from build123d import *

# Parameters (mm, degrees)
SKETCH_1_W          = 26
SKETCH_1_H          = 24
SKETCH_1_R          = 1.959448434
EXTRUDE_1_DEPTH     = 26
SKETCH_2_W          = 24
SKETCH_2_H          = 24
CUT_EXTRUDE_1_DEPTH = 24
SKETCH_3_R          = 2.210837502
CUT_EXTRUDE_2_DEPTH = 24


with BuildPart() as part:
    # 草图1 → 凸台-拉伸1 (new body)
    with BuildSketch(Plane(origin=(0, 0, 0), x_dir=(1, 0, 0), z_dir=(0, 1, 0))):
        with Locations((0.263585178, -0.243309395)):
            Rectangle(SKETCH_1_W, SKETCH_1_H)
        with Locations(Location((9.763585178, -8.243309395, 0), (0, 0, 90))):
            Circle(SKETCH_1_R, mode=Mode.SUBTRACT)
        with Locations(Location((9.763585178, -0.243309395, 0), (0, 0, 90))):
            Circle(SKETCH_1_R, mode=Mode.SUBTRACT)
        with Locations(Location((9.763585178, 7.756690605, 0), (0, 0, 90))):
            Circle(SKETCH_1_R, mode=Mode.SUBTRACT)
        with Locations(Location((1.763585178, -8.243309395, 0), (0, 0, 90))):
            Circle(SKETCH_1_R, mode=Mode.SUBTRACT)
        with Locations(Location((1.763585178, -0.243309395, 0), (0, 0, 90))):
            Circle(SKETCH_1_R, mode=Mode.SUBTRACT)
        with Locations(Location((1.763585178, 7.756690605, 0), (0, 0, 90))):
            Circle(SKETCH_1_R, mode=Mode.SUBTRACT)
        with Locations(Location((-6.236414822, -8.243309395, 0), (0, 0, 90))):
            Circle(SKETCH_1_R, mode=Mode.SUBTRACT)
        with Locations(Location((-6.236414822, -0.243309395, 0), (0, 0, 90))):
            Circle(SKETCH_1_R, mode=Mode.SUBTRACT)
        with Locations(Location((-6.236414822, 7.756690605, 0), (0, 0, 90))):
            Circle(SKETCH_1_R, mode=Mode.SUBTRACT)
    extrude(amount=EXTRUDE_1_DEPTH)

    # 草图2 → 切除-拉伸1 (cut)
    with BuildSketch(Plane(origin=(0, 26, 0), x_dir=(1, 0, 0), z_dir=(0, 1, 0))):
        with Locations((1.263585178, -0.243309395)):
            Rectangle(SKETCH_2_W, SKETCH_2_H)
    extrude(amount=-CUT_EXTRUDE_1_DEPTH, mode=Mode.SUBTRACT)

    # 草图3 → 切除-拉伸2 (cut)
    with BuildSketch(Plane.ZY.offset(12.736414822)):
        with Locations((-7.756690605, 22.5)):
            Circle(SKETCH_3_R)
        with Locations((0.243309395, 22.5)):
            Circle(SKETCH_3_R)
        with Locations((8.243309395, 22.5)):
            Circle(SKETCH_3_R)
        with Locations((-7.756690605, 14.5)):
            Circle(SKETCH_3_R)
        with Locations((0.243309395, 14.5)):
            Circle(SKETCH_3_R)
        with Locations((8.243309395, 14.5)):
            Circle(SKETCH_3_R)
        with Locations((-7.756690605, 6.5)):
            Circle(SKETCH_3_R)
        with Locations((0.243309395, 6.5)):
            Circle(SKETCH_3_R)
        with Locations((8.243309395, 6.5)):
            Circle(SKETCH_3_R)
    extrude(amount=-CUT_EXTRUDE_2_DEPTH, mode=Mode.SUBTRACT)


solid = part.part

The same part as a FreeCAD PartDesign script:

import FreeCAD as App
import Part
import Sketcher
Q = App.Units.Quantity


def add_polygon(sketch, points):
    """Adds a closed chain of lines whose ends are joined by coincident constraints."""
    first, n = sketch.GeometryCount, len(points)
    for a, b in zip(points, points[1:] + points[:1]):
        sketch.addGeometry(Part.LineSegment(App.Vector(*a, 0), App.Vector(*b, 0)), False)
    for i in range(n):
        sketch.addConstraint(Sketcher.Constraint("Coincident", first + i, 2, first + (i + 1) % n, 1))

doc = App.newDocument("Part")
body = doc.addObject("PartDesign::Body", "Body")

# Sketch on XZ plane
sketch1 = body.newObject("Sketcher::SketchObject", "Sketch")
sketch1.AttachmentSupport = (doc.getObject("XZ_Plane"), [""])
sketch1.MapMode = "FlatFace"
add_polygon(sketch1, [(-12.7, -11.8), (-12.7, 12.2), (13.3, 12.2), (13.3, -11.8)])  # lines 0-3
sketch1.addGeometry(Part.Circle(App.Vector(-6.2, 8.2, 0), App.Vector(0, 0, 1), 2), False)  # 4
sketch1.addGeometry(Part.Circle(App.Vector(1.8, 8.2, 0), App.Vector(0, 0, 1), 2), False)  # 5
sketch1.addGeometry(Part.Circle(App.Vector(9.8, 8.2, 0), App.Vector(0, 0, 1), 2), False)  # 6
sketch1.addGeometry(Part.Circle(App.Vector(-6.2, 0.2, 0), App.Vector(0, 0, 1), 2), False)  # 7
sketch1.addGeometry(Part.Circle(App.Vector(-6.2, -7.8, 0), App.Vector(0, 0, 1), 2), False)  # 8
sketch1.addGeometry(Part.Circle(App.Vector(1.8, 0.2, 0), App.Vector(0, 0, 1), 2), False)  # 9
sketch1.addGeometry(Part.Circle(App.Vector(9.8, 0.2, 0), App.Vector(0, 0, 1), 2), False)  # 10
sketch1.addGeometry(Part.Circle(App.Vector(1.8, -7.8, 0), App.Vector(0, 0, 1), 2), False)  # 11
sketch1.addGeometry(Part.Circle(App.Vector(9.8, -7.8, 0), App.Vector(0, 0, 1), 2), False)  # 12
sketch1.addConstraint(Sketcher.Constraint("Vertical", 0))
sketch1.addConstraint(Sketcher.Constraint("Horizontal", 1))
sketch1.addConstraint(Sketcher.Constraint("Vertical", 2))
sketch1.addConstraint(Sketcher.Constraint("Horizontal", 3))
sketch1.addConstraint(Sketcher.Constraint("Equal", 4, 5))
sketch1.addConstraint(Sketcher.Constraint("Equal", 5, 6))
sketch1.addConstraint(Sketcher.Constraint("Equal", 6, 7))
sketch1.addConstraint(Sketcher.Constraint("Equal", 7, 8))
sketch1.addConstraint(Sketcher.Constraint("Equal", 8, 9))
sketch1.addConstraint(Sketcher.Constraint("Equal", 9, 10))
sketch1.addConstraint(Sketcher.Constraint("Equal", 10, 11))
sketch1.addConstraint(Sketcher.Constraint("Equal", 11, 12))
sketch1.addConstraint(Sketcher.Constraint("Horizontal", 4, 3, 5, 3))
sketch1.addConstraint(Sketcher.Constraint("Horizontal", 5, 3, 6, 3))
sketch1.addConstraint(Sketcher.Constraint("Horizontal", 7, 3, 9, 3))
sketch1.addConstraint(Sketcher.Constraint("Horizontal", 9, 3, 10, 3))
sketch1.addConstraint(Sketcher.Constraint("Horizontal", 8, 3, 11, 3))
sketch1.addConstraint(Sketcher.Constraint("Horizontal", 11, 3, 12, 3))
sketch1.addConstraint(Sketcher.Constraint("Vertical", 4, 3, 7, 3))
sketch1.addConstraint(Sketcher.Constraint("Vertical", 7, 3, 8, 3))
sketch1.addConstraint(Sketcher.Constraint("Vertical", 5, 3, 9, 3))
sketch1.addConstraint(Sketcher.Constraint("Vertical", 6, 3, 10, 3))
sketch1.addConstraint(Sketcher.Constraint("Vertical", 9, 3, 11, 3))
sketch1.addConstraint(Sketcher.Constraint("Vertical", 10, 3, 12, 3))
sketch1.addConstraint(Sketcher.Constraint("DistanceX", 1, 1, 1, 2, Q("26 mm")))
sketch1.addConstraint(Sketcher.Constraint("DistanceY", 0, 1, 0, 2, Q("24 mm")))
sketch1.addConstraint(Sketcher.Constraint("DistanceX", 4, 3, 5, 3, Q("8 mm")))
sketch1.addConstraint(Sketcher.Constraint("DistanceX", 5, 3, 6, 3, Q("8 mm")))
sketch1.addConstraint(Sketcher.Constraint("DistanceY", 7, 3, 4, 3, Q("8 mm")))
sketch1.addConstraint(Sketcher.Constraint("DistanceY", 8, 3, 7, 3, Q("8 mm")))
sketch1.addConstraint(Sketcher.Constraint("DistanceY", 4, 3, 0, 2, Q("4 mm")))
sketch1.addConstraint(Sketcher.Constraint("DistanceX", 0, 2, 4, 3, Q("6.5 mm")))
sketch1.addConstraint(Sketcher.Constraint("Diameter", 4, Q("3.918897 mm")))
sketch1.addConstraint(Sketcher.Constraint("DistanceY", -1, 1, 4, 3, Q("8.243309 mm")))
sketch1.addConstraint(Sketcher.Constraint("DistanceX", 4, 3, -1, 1, Q("6.236415 mm")))
pad1 = body.newObject("PartDesign::Pad", "Pad")
pad1.Profile = sketch1
pad1.Length = 26
pad1.Reversed = True

# Sketch on XZ plane
sketch2 = body.newObject("Sketcher::SketchObject", "Sketch001")
sketch2.AttachmentSupport = (doc.getObject("XZ_Plane"), [""])
sketch2.MapMode = "FlatFace"
sketch2.AttachmentOffset = App.Placement(App.Vector(0, 0, -26), App.Rotation())
add_polygon(sketch2, [(-11, -12), (-11, 12), (13, 12), (13, -12)])  # lines 0-3
sketch2.addConstraint(Sketcher.Constraint("Vertical", 0))
sketch2.addConstraint(Sketcher.Constraint("Horizontal", 1))
sketch2.addConstraint(Sketcher.Constraint("Vertical", 2))
sketch2.addConstraint(Sketcher.Constraint("Horizontal", 3))
sketch2.addConstraint(Sketcher.Constraint("Equal", 3, 0))
sketch2.addConstraint(Sketcher.Constraint("DistanceX", 1, 1, 1, 2, Q("24 mm")))
sketch2.addConstraint(Sketcher.Constraint("DistanceY", -1, 1, 0, 2, Q("12.243309 mm")))
sketch2.addConstraint(Sketcher.Constraint("DistanceX", 0, 2, -1, 1, Q("10.736415 mm")))
pocket1 = body.newObject("PartDesign::Pocket", "Pocket")
pocket1.Profile = sketch2
pocket1.Length = 24
pocket1.Reversed = True

# Sketch on YZ plane
sketch3 = body.newObject("Sketcher::SketchObject", "Sketch002")
sketch3.AttachmentSupport = (doc.getObject("YZ_Plane"), [""])
sketch3.MapMode = "FlatFace"
sketch3.AttachmentOffset = App.Placement(App.Vector(0, 0, -12.736415), App.Rotation())
sketch3.addGeometry(Part.Circle(App.Vector(22.5, -7.8, 0), App.Vector(0, 0, 1), 2.2), False)
sketch3.addGeometry(Part.Circle(App.Vector(22.5, 0.2, 0), App.Vector(0, 0, 1), 2.2), False)
sketch3.addGeometry(Part.Circle(App.Vector(22.5, 8.2, 0), App.Vector(0, 0, 1), 2.2), False)
sketch3.addGeometry(Part.Circle(App.Vector(14.5, -7.8, 0), App.Vector(0, 0, 1), 2.2), False)
sketch3.addGeometry(Part.Circle(App.Vector(14.5, 0.2, 0), App.Vector(0, 0, 1), 2.2), False)
sketch3.addGeometry(Part.Circle(App.Vector(14.5, 8.2, 0), App.Vector(0, 0, 1), 2.2), False)
sketch3.addGeometry(Part.Circle(App.Vector(6.5, -7.8, 0), App.Vector(0, 0, 1), 2.2), False)
sketch3.addGeometry(Part.Circle(App.Vector(6.5, 0.2, 0), App.Vector(0, 0, 1), 2.2), False)
sketch3.addGeometry(Part.Circle(App.Vector(6.5, 8.2, 0), App.Vector(0, 0, 1), 2.2), False)
sketch3.addConstraint(Sketcher.Constraint("Equal", 0, 1))
sketch3.addConstraint(Sketcher.Constraint("Equal", 1, 2))
sketch3.addConstraint(Sketcher.Constraint("Equal", 2, 3))
sketch3.addConstraint(Sketcher.Constraint("Equal", 3, 4))
sketch3.addConstraint(Sketcher.Constraint("Equal", 4, 5))
sketch3.addConstraint(Sketcher.Constraint("Equal", 5, 6))
sketch3.addConstraint(Sketcher.Constraint("Equal", 6, 7))
sketch3.addConstraint(Sketcher.Constraint("Equal", 7, 8))
sketch3.addConstraint(Sketcher.Constraint("Horizontal", 0, 3, 3, 3))
sketch3.addConstraint(Sketcher.Constraint("Horizontal", 1, 3, 4, 3))
sketch3.addConstraint(Sketcher.Constraint("Horizontal", 2, 3, 5, 3))
sketch3.addConstraint(Sketcher.Constraint("Horizontal", 3, 3, 6, 3))
sketch3.addConstraint(Sketcher.Constraint("Horizontal", 4, 3, 7, 3))
sketch3.addConstraint(Sketcher.Constraint("Horizontal", 5, 3, 8, 3))
sketch3.addConstraint(Sketcher.Constraint("Vertical", 0, 3, 1, 3))
sketch3.addConstraint(Sketcher.Constraint("Vertical", 1, 3, 2, 3))
sketch3.addConstraint(Sketcher.Constraint("Vertical", 3, 3, 4, 3))
sketch3.addConstraint(Sketcher.Constraint("Vertical", 4, 3, 5, 3))
sketch3.addConstraint(Sketcher.Constraint("Vertical", 6, 3, 7, 3))
sketch3.addConstraint(Sketcher.Constraint("Vertical", 7, 3, 8, 3))
sketch3.addConstraint(Sketcher.Constraint("DistanceY", 0, 3, 1, 3, Q("8 mm")))
sketch3.addConstraint(Sketcher.Constraint("DistanceY", 1, 3, 2, 3, Q("8 mm")))
sketch3.addConstraint(Sketcher.Constraint("DistanceX", 3, 3, 0, 3, Q("8 mm")))
sketch3.addConstraint(Sketcher.Constraint("DistanceX", 6, 3, 3, 3, Q("8 mm")))
sketch3.addConstraint(Sketcher.Constraint("DistanceX", -1, 1, 0, 3, Q("22.5 mm")))
sketch3.addConstraint(Sketcher.Constraint("Diameter", 0, Q("4.421675 mm")))
sketch3.addConstraint(Sketcher.Constraint("DistanceY", 0, 3, -1, 1, Q("7.756691 mm")))
pocket2 = body.newObject("PartDesign::Pocket", "Pocket001")
pocket2.Profile = sketch3
pocket2.Length = 24
pocket2.Reversed = True

doc.recompute()
